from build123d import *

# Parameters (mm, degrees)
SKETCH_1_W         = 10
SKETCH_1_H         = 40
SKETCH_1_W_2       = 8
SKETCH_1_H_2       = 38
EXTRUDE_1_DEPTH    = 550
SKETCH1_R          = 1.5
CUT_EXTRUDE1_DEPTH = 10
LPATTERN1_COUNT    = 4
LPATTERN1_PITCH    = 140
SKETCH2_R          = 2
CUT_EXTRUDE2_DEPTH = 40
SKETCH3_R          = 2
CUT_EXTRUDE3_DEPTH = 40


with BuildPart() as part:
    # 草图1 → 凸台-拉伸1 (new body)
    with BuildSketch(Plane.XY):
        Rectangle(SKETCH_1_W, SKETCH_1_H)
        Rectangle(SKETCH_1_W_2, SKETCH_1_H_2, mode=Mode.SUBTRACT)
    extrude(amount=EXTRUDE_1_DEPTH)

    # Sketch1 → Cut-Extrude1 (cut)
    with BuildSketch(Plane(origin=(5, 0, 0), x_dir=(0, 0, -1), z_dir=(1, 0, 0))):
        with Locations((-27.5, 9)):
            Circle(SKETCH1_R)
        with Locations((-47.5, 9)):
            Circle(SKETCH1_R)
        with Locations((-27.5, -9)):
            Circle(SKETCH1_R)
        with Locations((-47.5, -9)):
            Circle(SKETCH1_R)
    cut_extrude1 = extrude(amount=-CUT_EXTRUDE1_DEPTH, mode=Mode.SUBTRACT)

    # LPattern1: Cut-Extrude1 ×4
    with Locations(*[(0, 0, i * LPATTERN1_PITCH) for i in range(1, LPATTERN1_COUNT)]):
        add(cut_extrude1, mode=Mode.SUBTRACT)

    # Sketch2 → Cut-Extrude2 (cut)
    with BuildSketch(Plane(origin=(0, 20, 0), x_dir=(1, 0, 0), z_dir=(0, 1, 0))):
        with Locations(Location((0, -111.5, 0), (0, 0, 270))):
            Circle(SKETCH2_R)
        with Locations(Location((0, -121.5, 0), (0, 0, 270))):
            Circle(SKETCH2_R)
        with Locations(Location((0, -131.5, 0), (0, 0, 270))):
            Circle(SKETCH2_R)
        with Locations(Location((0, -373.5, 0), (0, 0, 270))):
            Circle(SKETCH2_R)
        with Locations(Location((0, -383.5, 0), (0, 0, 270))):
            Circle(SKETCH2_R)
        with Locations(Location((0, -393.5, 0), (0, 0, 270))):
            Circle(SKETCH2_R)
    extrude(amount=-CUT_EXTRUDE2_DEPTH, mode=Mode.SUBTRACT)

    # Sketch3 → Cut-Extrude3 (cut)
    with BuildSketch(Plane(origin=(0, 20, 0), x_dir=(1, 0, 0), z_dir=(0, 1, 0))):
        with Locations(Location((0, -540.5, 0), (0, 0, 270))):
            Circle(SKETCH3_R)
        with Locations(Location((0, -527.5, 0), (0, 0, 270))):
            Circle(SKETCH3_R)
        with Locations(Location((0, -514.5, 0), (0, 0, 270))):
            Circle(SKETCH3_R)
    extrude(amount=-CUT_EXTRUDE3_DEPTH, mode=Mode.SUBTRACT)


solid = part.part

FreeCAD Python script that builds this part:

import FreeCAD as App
import Part
import Sketcher

V = App.Vector
Q = App.Units.Quantity

doc = App.newDocument("Part")
body = doc.addObject("PartDesign::Body", "Body")

# Sketch on XY plane
sketch1 = body.newObject("Sketcher::SketchObject", "Sketch")
sketch1.AttachmentSupport = (doc.getObject("XY_Plane"), [""])
sketch1.MapMode = "FlatFace"
sketch1.addGeometry([
    Part.LineSegment(V(-5, 20, 0), V(-5, -20, 0)),  # 0
    Part.LineSegment(V(-5, -20, 0), V(5, -20, 0)),  # 1
    Part.LineSegment(V(5, -20, 0), V(5, 20, 0)),  # 2
    Part.LineSegment(V(5, 20, 0), V(-5, 20, 0)),  # 3
    Part.LineSegment(V(4, -19, 0), V(-4, -19, 0)),  # 4
    Part.LineSegment(V(-4, -19, 0), V(-4, 19, 0)),  # 5
    Part.LineSegment(V(-4, 19, 0), V(4, 19, 0)),  # 6
    Part.LineSegment(V(4, 19, 0), V(4, -19, 0)),  # 7
], False)
sketch1.addConstraint([
    Sketcher.Constraint("Coincident", 0, 2, 1, 1),
    Sketcher.Constraint("Coincident", 1, 2, 2, 1),
    Sketcher.Constraint("Coincident", 2, 2, 3, 1),
    Sketcher.Constraint("Coincident", 3, 2, 0, 1),
    Sketcher.Constraint("Coincident", 4, 2, 5, 1),
    Sketcher.Constraint("Coincident", 5, 2, 6, 1),
    Sketcher.Constraint("Coincident", 6, 2, 7, 1),
    Sketcher.Constraint("Coincident", 7, 2, 4, 1),
    Sketcher.Constraint("Vertical", 0),
    Sketcher.Constraint("Horizontal", 1),
    Sketcher.Constraint("Vertical", 2),
    Sketcher.Constraint("Horizontal", 3),
    Sketcher.Constraint("Horizontal", 4),
    Sketcher.Constraint("Vertical", 5),
    Sketcher.Constraint("Horizontal", 6),
    Sketcher.Constraint("Vertical", 7),
    Sketcher.Constraint("Symmetric", 0, 2, 2, 2, -1, 1),
    Sketcher.Constraint("Symmetric", 4, 2, 6, 2, -1, 1),
    Sketcher.Constraint("DistanceX", 1, 1, 1, 2, Q("10 mm")),
    Sketcher.Constraint("DistanceX", 4, 2, 4, 1, Q("8 mm")),
    Sketcher.Constraint("DistanceY", 0, 2, 0, 1, Q("40 mm")),
    Sketcher.Constraint("DistanceY", 5, 1, 5, 2, Q("38 mm")),
])
pad1 = body.newObject("PartDesign::Pad", "Pad")
pad1.Profile = sketch1
pad1.Length = 550

# Sketch on YZ plane
sketch2 = body.newObject("Sketcher::SketchObject", "Sketch001")
sketch2.AttachmentSupport = (doc.getObject("YZ_Plane"), [""])
sketch2.MapMode = "FlatFace"
sketch2.AttachmentOffset = App.Placement(V(0, 0, 5), App.Rotation())
sketch2.addGeometry([
    Part.Circle(V(9, 27.5, 0), V(0, 0, 1), 1.5),
    Part.Circle(V(9, 47.5, 0), V(0, 0, 1), 1.5),
    Part.Circle(V(-9, 27.5, 0), V(0, 0, 1), 1.5),
    Part.Circle(V(-9, 47.5, 0), V(0, 0, 1), 1.5),
], False)
sketch2.addConstraint([
    Sketcher.Constraint("Equal", 0, 1),
    Sketcher.Constraint("Equal", 1, 2),
    Sketcher.Constraint("Equal", 2, 3),
    Sketcher.Constraint("Symmetric", 0, 3, 2, 3, -2),
    Sketcher.Constraint("Symmetric", 1, 3, 3, 3, -2),
    Sketcher.Constraint("Vertical", 0, 3, 1, 3),
    Sketcher.Constraint("Diameter", 0, Q("3 mm")),
    Sketcher.Constraint("DistanceX", -1, 1, 0, 3, Q("9 mm")),
    Sketcher.Constraint("DistanceY", 0, 3, 1, 3, Q("20 mm")),
    Sketcher.Constraint("DistanceY", -1, 1, 0, 3, Q("27.5 mm")),
])
pocket1 = body.newObject("PartDesign::Pocket", "Pocket")
pocket1.Profile = sketch2
pocket1.Length = 10
doc.recompute()

linearpattern = body.newObject("PartDesign::LinearPattern", "LinearPattern")
linearpattern.Originals = [pocket1]
linearpattern.Direction = (doc.getObject("Z_Axis"), [""])
linearpattern.Mode = "offset"
linearpattern.Offset = 140
linearpattern.Occurrences = 4
body.Tip = linearpattern

# Sketch on XZ plane
sketch3 = body.newObject("Sketcher::SketchObject", "Sketch002")
sketch3.AttachmentSupport = (doc.getObject("XZ_Plane"), [""])
sketch3.MapMode = "FlatFace"
sketch3.AttachmentOffset = App.Placement(V(0, 0, -20), App.Rotation())
sketch3.addGeometry([
    Part.Circle(V(0, 111.5, 0), V(0, 0, 1), 2),  # 0
    Part.Circle(V(0, 121.5, 0), V(0, 0, 1), 2),  # 1
    Part.Circle(V(0, 131.5, 0), V(0, 0, 1), 2),  # 2
    Part.Circle(V(0, 373.5, 0), V(0, 0, 1), 2),  # 3
    Part.Circle(V(0, 383.5, 0), V(0, 0, 1), 2),  # 4
    Part.Circle(V(0, 393.5, 0), V(0, 0, 1), 2),  # 5
], False)
sketch3.addConstraint([
    Sketcher.Constraint("Equal", 0, 1),
    Sketcher.Constraint("Equal", 1, 2),
    Sketcher.Constraint("Equal", 2, 3),
    Sketcher.Constraint("Equal", 3, 4),
    Sketcher.Constraint("Equal", 4, 5),
    Sketcher.Constraint("PointOnObject", 0, 3, -2),
    Sketcher.Constraint("PointOnObject", 1, 3, -2),
    Sketcher.Constraint("PointOnObject", 2, 3, -2),
    Sketcher.Constraint("PointOnObject", 3, 3, -2),
    Sketcher.Constraint("PointOnObject", 4, 3, -2),
    Sketcher.Constraint("PointOnObject", 5, 3, -2),
    Sketcher.Constraint("Diameter", 0, Q("4 mm")),
    Sketcher.Constraint("DistanceY", 0, 3, 1, 3, Q("10 mm")),
    Sketcher.Constraint("DistanceY", 1, 3, 2, 3, Q("10 mm")),
    Sketcher.Constraint("DistanceY", 2, 3, 3, 3, Q("242 mm")),
    Sketcher.Constraint("DistanceY", 3, 3, 4, 3, Q("10 mm")),
    Sketcher.Constraint("DistanceY", 4, 3, 5, 3, Q("10 mm")),
    Sketcher.Constraint("DistanceY", -1, 1, 0, 3, Q("111.5 mm")),
])
pocket2 = body.newObject("PartDesign::Pocket", "Pocket001")
pocket2.Profile = sketch3
pocket2.Length = 40
pocket2.Reversed = True

# Sketch on XZ plane
sketch4 = body.newObject("Sketcher::SketchObject", "Sketch003")
sketch4.AttachmentSupport = (doc.getObject("XZ_Plane"), [""])
sketch4.MapMode = "FlatFace"
sketch4.AttachmentOffset = App.Placement(V(0, 0, -20), App.Rotation())
sketch4.addGeometry([
    Part.Circle(V(0, 540.5, 0), V(0, 0, 1), 2),
    Part.Circle(V(0, 527.5, 0), V(0, 0, 1), 2),
    Part.Circle(V(0, 514.5, 0), V(0, 0, 1), 2),
], False)
sketch4.addConstraint([
    Sketcher.Constraint("Equal", 0, 1),
    Sketcher.Constraint("Equal", 1, 2),
    Sketcher.Constraint("PointOnObject", 0, 3, -2),
    Sketcher.Constraint("PointOnObject", 1, 3, -2),
    Sketcher.Constraint("PointOnObject", 2, 3, -2),
    Sketcher.Constraint("Diameter", 0, Q("4 mm")),
    Sketcher.Constraint("DistanceY", 1, 3, 0, 3, Q("13 mm")),
    Sketcher.Constraint("DistanceY", 2, 3, 1, 3, Q("13 mm")),
    Sketcher.Constraint("DistanceY", -1, 1, 0, 3, Q("540.5 mm")),
])
pocket3 = body.newObject("PartDesign::Pocket", "Pocket002")
pocket3.Profile = sketch4
pocket3.Length = 40
pocket3.Reversed = True

doc.recompute()
